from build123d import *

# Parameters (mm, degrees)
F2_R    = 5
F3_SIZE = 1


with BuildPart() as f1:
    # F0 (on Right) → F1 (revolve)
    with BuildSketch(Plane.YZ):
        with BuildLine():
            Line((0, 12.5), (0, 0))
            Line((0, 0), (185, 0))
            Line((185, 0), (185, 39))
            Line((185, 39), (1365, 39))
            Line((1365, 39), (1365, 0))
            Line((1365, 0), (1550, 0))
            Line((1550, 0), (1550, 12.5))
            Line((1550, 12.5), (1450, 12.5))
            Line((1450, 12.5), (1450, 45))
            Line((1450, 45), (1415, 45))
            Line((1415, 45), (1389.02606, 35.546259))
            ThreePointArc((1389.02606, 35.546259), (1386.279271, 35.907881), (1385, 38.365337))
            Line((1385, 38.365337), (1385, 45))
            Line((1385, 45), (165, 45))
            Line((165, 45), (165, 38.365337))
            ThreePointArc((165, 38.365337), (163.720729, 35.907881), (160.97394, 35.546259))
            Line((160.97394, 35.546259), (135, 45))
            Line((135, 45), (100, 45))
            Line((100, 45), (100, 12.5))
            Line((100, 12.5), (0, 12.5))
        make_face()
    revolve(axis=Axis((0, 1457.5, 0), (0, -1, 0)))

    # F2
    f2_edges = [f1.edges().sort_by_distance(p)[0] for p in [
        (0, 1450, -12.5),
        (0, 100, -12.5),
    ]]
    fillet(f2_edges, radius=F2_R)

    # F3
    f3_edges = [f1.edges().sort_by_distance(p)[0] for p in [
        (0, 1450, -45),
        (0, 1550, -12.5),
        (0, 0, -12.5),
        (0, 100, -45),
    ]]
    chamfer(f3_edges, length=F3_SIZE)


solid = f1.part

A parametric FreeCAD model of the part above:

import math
import FreeCAD as App
import Part
import Sketcher
Q = App.Units.Quantity


def edges_at(feature, points):
    """Names of the edges that pass closest to the given points."""
    edges = feature.Shape.Edges
    near = lambda p: min(range(len(edges)), key=lambda i: edges[i].distToShape(Part.Vertex(*p))[0])
    return sorted({f"Edge{near(p) + 1}" for p in points})

doc = App.newDocument("Part")
body = doc.addObject("PartDesign::Body", "Body")

sketch1 = body.newObject("Sketcher::SketchObject", "Sketch")
sketch1.AttachmentSupport = (doc.getObject("YZ_Plane"), [""])
sketch1.MapMode = "FlatFace"
sketch1.addGeometry([
    Part.LineSegment(App.Vector(0, 12.5, 0), App.Vector(0, 0, 0)),
    Part.LineSegment(App.Vector(0, 0, 0), App.Vector(185, 0, 0)),
    Part.LineSegment(App.Vector(185, 0, 0), App.Vector(185, 39, 0)),
    Part.LineSegment(App.Vector(185, 39, 0), App.Vector(1365, 39, 0)),
    Part.LineSegment(App.Vector(1365, 39, 0), App.Vector(1365, 0, 0)),
    Part.LineSegment(App.Vector(1365, 0, 0), App.Vector(1550, 0, 0)),
    Part.LineSegment(App.Vector(1550, 0, 0), App.Vector(1550, 12.5, 0)),
    Part.LineSegment(App.Vector(1550, 12.5, 0), App.Vector(1450, 12.5, 0)),
    Part.LineSegment(App.Vector(1450, 12.5, 0), App.Vector(1450, 45, 0)),
    Part.LineSegment(App.Vector(1450, 45, 0), App.Vector(1415, 45, 0)),
    Part.LineSegment(App.Vector(1415, 45, 0), App.Vector(1389, 35.5, 0)),
    Part.ArcOfCircle(Part.Circle(App.Vector(1388, 38.4, 0), App.Vector(0, 0, 1), 3), math.radians(-180), math.radians(-70)),
    Part.LineSegment(App.Vector(1385, 38.4, 0), App.Vector(1385, 45, 0)),
    Part.LineSegment(App.Vector(1385, 45, 0), App.Vector(165, 45, 0)),
    Part.LineSegment(App.Vector(165, 45, 0), App.Vector(165, 38.4, 0)),
    Part.ArcOfCircle(Part.Circle(App.Vector(162, 38.4, 0), App.Vector(0, 0, 1), 3), math.radians(-110), math.radians(0)),
    Part.LineSegment(App.Vector(161, 35.5, 0), App.Vector(135, 45, 0)),
    Part.LineSegment(App.Vector(135, 45, 0), App.Vector(100, 45, 0)),
    Part.LineSegment(App.Vector(100, 45, 0), App.Vector(100, 12.5, 0)),
    Part.LineSegment(App.Vector(100, 12.5, 0), App.Vector(0, 12.5, 0)),
], False)
sketch1.addConstraint([
    Sketcher.Constraint("Coincident", 0, 2, 1, 1),
    Sketcher.Constraint("Coincident", 1, 2, 2, 1),
    Sketcher.Constraint("Coincident", 2, 2, 3, 1),
    Sketcher.Constraint("Coincident", 3, 2, 4, 1),
    Sketcher.Constraint("Coincident", 4, 2, 5, 1),
    Sketcher.Constraint("Coincident", 5, 2, 6, 1),
    Sketcher.Constraint("Coincident", 6, 2, 7, 1),
    Sketcher.Constraint("Coincident", 7, 2, 8, 1),
    Sketcher.Constraint("Coincident", 8, 2, 9, 1),
    Sketcher.Constraint("Coincident", 9, 2, 10, 1),
    Sketcher.Constraint("Tangent", 10, 2, 11, 2),
    Sketcher.Constraint("Tangent", 11, 1, 12, 1),
    Sketcher.Constraint("Coincident", 12, 2, 13, 1),
    Sketcher.Constraint("Coincident", 13, 2, 14, 1),
    Sketcher.Constraint("Tangent", 14, 2, 15, 2),
    Sketcher.Constraint("Tangent", 15, 1, 16, 1),
    Sketcher.Constraint("Coincident", 16, 2, 17, 1),
    Sketcher.Constraint("Coincident", 17, 2, 18, 1),
    Sketcher.Constraint("Coincident", 18, 2, 19, 1),
    Sketcher.Constraint("Coincident", 19, 2, 0, 1),
    Sketcher.Constraint("Vertical", 0),
    Sketcher.Constraint("Horizontal", 1),
    Sketcher.Constraint("Vertical", 2),
    Sketcher.Constraint("Horizontal", 3),
    Sketcher.Constraint("Vertical", 4),
    Sketcher.Constraint("Horizontal", 5),
    Sketcher.Constraint("Vertical", 6),
    Sketcher.Constraint("Horizontal", 7),
    Sketcher.Constraint("Vertical", 8),
    Sketcher.Constraint("Horizontal", 9),
    Sketcher.Constraint("Vertical", 12),
    Sketcher.Constraint("Horizontal", 13),
    Sketcher.Constraint("Vertical", 14),
    Sketcher.Constraint("Horizontal", 17),
    Sketcher.Constraint("Vertical", 18),
    Sketcher.Constraint("Horizontal", 19),
    Sketcher.Constraint("Coincident", 0, 2, -1, 1),
    Sketcher.Constraint("Equal", 11, 15),
    Sketcher.Constraint("PointOnObject", 4, 2, -1),
    Sketcher.Constraint("Horizontal", 11, 3, 15, 3),
    Sketcher.Constraint("Horizontal", 9, 2, 12, 2),
    Sketcher.Constraint("Horizontal", 10, 2, 15, 1),
    Sketcher.Constraint("Horizontal", 13, 2, 16, 2),
    Sketcher.Constraint("Horizontal", 7, 2, 18, 2),
    Sketcher.Constraint("Equal", 1, 5),
    Sketcher.Constraint("Equal", 9, 17),
    Sketcher.Constraint("Equal", 7, 19),
    Sketcher.Constraint("Radius", 11, 3.0),
    Sketcher.Constraint("DistanceX", 1, 1, 1, 2, 185.0),
    Sketcher.Constraint("DistanceX", 3, 1, 3, 2, 1180.0),
    Sketcher.Constraint("DistanceX", 7, 2, 7, 1, 100.0),
    Sketcher.Constraint("DistanceX", 9, 2, 9, 1, 35.0),
    Sketcher.Constraint("DistanceX", 13, 2, 13, 1, 1220.0),
    Sketcher.Constraint("DistanceY", 2, 1, 2, 2, 39.0),
    Sketcher.Constraint("Angle", 10, Q("-160 deg")),
    Sketcher.Constraint("DistanceY", 0, 2, 0, 1, 12.5),
    Sketcher.Constraint("DistanceY", 8, 1, 8, 2, 32.5),
])
revolution = body.newObject("PartDesign::Revolution", "Revolution")
revolution.Profile = sketch1
revolution.ReferenceAxis = (sketch1, ["H_Axis"])
revolution.Angle = 360
doc.recompute()

fillet = body.newObject("PartDesign::Fillet", "Fillet")
fillet.Base = (revolution, edges_at(revolution, [(0, 1450, -12.5), (0, 100, -12.5)]))
fillet.Radius = 5
doc.recompute()

chamfer = body.newObject("PartDesign::Chamfer", "Chamfer")
chamfer.Base = (fillet, edges_at(fillet, [
    (0, 1450, -45),
    (0, 1550, -12.5),
    (0, 0, -12.5),
    (0, 100, -45),
]))
chamfer.Size = 1

doc.recompute()
